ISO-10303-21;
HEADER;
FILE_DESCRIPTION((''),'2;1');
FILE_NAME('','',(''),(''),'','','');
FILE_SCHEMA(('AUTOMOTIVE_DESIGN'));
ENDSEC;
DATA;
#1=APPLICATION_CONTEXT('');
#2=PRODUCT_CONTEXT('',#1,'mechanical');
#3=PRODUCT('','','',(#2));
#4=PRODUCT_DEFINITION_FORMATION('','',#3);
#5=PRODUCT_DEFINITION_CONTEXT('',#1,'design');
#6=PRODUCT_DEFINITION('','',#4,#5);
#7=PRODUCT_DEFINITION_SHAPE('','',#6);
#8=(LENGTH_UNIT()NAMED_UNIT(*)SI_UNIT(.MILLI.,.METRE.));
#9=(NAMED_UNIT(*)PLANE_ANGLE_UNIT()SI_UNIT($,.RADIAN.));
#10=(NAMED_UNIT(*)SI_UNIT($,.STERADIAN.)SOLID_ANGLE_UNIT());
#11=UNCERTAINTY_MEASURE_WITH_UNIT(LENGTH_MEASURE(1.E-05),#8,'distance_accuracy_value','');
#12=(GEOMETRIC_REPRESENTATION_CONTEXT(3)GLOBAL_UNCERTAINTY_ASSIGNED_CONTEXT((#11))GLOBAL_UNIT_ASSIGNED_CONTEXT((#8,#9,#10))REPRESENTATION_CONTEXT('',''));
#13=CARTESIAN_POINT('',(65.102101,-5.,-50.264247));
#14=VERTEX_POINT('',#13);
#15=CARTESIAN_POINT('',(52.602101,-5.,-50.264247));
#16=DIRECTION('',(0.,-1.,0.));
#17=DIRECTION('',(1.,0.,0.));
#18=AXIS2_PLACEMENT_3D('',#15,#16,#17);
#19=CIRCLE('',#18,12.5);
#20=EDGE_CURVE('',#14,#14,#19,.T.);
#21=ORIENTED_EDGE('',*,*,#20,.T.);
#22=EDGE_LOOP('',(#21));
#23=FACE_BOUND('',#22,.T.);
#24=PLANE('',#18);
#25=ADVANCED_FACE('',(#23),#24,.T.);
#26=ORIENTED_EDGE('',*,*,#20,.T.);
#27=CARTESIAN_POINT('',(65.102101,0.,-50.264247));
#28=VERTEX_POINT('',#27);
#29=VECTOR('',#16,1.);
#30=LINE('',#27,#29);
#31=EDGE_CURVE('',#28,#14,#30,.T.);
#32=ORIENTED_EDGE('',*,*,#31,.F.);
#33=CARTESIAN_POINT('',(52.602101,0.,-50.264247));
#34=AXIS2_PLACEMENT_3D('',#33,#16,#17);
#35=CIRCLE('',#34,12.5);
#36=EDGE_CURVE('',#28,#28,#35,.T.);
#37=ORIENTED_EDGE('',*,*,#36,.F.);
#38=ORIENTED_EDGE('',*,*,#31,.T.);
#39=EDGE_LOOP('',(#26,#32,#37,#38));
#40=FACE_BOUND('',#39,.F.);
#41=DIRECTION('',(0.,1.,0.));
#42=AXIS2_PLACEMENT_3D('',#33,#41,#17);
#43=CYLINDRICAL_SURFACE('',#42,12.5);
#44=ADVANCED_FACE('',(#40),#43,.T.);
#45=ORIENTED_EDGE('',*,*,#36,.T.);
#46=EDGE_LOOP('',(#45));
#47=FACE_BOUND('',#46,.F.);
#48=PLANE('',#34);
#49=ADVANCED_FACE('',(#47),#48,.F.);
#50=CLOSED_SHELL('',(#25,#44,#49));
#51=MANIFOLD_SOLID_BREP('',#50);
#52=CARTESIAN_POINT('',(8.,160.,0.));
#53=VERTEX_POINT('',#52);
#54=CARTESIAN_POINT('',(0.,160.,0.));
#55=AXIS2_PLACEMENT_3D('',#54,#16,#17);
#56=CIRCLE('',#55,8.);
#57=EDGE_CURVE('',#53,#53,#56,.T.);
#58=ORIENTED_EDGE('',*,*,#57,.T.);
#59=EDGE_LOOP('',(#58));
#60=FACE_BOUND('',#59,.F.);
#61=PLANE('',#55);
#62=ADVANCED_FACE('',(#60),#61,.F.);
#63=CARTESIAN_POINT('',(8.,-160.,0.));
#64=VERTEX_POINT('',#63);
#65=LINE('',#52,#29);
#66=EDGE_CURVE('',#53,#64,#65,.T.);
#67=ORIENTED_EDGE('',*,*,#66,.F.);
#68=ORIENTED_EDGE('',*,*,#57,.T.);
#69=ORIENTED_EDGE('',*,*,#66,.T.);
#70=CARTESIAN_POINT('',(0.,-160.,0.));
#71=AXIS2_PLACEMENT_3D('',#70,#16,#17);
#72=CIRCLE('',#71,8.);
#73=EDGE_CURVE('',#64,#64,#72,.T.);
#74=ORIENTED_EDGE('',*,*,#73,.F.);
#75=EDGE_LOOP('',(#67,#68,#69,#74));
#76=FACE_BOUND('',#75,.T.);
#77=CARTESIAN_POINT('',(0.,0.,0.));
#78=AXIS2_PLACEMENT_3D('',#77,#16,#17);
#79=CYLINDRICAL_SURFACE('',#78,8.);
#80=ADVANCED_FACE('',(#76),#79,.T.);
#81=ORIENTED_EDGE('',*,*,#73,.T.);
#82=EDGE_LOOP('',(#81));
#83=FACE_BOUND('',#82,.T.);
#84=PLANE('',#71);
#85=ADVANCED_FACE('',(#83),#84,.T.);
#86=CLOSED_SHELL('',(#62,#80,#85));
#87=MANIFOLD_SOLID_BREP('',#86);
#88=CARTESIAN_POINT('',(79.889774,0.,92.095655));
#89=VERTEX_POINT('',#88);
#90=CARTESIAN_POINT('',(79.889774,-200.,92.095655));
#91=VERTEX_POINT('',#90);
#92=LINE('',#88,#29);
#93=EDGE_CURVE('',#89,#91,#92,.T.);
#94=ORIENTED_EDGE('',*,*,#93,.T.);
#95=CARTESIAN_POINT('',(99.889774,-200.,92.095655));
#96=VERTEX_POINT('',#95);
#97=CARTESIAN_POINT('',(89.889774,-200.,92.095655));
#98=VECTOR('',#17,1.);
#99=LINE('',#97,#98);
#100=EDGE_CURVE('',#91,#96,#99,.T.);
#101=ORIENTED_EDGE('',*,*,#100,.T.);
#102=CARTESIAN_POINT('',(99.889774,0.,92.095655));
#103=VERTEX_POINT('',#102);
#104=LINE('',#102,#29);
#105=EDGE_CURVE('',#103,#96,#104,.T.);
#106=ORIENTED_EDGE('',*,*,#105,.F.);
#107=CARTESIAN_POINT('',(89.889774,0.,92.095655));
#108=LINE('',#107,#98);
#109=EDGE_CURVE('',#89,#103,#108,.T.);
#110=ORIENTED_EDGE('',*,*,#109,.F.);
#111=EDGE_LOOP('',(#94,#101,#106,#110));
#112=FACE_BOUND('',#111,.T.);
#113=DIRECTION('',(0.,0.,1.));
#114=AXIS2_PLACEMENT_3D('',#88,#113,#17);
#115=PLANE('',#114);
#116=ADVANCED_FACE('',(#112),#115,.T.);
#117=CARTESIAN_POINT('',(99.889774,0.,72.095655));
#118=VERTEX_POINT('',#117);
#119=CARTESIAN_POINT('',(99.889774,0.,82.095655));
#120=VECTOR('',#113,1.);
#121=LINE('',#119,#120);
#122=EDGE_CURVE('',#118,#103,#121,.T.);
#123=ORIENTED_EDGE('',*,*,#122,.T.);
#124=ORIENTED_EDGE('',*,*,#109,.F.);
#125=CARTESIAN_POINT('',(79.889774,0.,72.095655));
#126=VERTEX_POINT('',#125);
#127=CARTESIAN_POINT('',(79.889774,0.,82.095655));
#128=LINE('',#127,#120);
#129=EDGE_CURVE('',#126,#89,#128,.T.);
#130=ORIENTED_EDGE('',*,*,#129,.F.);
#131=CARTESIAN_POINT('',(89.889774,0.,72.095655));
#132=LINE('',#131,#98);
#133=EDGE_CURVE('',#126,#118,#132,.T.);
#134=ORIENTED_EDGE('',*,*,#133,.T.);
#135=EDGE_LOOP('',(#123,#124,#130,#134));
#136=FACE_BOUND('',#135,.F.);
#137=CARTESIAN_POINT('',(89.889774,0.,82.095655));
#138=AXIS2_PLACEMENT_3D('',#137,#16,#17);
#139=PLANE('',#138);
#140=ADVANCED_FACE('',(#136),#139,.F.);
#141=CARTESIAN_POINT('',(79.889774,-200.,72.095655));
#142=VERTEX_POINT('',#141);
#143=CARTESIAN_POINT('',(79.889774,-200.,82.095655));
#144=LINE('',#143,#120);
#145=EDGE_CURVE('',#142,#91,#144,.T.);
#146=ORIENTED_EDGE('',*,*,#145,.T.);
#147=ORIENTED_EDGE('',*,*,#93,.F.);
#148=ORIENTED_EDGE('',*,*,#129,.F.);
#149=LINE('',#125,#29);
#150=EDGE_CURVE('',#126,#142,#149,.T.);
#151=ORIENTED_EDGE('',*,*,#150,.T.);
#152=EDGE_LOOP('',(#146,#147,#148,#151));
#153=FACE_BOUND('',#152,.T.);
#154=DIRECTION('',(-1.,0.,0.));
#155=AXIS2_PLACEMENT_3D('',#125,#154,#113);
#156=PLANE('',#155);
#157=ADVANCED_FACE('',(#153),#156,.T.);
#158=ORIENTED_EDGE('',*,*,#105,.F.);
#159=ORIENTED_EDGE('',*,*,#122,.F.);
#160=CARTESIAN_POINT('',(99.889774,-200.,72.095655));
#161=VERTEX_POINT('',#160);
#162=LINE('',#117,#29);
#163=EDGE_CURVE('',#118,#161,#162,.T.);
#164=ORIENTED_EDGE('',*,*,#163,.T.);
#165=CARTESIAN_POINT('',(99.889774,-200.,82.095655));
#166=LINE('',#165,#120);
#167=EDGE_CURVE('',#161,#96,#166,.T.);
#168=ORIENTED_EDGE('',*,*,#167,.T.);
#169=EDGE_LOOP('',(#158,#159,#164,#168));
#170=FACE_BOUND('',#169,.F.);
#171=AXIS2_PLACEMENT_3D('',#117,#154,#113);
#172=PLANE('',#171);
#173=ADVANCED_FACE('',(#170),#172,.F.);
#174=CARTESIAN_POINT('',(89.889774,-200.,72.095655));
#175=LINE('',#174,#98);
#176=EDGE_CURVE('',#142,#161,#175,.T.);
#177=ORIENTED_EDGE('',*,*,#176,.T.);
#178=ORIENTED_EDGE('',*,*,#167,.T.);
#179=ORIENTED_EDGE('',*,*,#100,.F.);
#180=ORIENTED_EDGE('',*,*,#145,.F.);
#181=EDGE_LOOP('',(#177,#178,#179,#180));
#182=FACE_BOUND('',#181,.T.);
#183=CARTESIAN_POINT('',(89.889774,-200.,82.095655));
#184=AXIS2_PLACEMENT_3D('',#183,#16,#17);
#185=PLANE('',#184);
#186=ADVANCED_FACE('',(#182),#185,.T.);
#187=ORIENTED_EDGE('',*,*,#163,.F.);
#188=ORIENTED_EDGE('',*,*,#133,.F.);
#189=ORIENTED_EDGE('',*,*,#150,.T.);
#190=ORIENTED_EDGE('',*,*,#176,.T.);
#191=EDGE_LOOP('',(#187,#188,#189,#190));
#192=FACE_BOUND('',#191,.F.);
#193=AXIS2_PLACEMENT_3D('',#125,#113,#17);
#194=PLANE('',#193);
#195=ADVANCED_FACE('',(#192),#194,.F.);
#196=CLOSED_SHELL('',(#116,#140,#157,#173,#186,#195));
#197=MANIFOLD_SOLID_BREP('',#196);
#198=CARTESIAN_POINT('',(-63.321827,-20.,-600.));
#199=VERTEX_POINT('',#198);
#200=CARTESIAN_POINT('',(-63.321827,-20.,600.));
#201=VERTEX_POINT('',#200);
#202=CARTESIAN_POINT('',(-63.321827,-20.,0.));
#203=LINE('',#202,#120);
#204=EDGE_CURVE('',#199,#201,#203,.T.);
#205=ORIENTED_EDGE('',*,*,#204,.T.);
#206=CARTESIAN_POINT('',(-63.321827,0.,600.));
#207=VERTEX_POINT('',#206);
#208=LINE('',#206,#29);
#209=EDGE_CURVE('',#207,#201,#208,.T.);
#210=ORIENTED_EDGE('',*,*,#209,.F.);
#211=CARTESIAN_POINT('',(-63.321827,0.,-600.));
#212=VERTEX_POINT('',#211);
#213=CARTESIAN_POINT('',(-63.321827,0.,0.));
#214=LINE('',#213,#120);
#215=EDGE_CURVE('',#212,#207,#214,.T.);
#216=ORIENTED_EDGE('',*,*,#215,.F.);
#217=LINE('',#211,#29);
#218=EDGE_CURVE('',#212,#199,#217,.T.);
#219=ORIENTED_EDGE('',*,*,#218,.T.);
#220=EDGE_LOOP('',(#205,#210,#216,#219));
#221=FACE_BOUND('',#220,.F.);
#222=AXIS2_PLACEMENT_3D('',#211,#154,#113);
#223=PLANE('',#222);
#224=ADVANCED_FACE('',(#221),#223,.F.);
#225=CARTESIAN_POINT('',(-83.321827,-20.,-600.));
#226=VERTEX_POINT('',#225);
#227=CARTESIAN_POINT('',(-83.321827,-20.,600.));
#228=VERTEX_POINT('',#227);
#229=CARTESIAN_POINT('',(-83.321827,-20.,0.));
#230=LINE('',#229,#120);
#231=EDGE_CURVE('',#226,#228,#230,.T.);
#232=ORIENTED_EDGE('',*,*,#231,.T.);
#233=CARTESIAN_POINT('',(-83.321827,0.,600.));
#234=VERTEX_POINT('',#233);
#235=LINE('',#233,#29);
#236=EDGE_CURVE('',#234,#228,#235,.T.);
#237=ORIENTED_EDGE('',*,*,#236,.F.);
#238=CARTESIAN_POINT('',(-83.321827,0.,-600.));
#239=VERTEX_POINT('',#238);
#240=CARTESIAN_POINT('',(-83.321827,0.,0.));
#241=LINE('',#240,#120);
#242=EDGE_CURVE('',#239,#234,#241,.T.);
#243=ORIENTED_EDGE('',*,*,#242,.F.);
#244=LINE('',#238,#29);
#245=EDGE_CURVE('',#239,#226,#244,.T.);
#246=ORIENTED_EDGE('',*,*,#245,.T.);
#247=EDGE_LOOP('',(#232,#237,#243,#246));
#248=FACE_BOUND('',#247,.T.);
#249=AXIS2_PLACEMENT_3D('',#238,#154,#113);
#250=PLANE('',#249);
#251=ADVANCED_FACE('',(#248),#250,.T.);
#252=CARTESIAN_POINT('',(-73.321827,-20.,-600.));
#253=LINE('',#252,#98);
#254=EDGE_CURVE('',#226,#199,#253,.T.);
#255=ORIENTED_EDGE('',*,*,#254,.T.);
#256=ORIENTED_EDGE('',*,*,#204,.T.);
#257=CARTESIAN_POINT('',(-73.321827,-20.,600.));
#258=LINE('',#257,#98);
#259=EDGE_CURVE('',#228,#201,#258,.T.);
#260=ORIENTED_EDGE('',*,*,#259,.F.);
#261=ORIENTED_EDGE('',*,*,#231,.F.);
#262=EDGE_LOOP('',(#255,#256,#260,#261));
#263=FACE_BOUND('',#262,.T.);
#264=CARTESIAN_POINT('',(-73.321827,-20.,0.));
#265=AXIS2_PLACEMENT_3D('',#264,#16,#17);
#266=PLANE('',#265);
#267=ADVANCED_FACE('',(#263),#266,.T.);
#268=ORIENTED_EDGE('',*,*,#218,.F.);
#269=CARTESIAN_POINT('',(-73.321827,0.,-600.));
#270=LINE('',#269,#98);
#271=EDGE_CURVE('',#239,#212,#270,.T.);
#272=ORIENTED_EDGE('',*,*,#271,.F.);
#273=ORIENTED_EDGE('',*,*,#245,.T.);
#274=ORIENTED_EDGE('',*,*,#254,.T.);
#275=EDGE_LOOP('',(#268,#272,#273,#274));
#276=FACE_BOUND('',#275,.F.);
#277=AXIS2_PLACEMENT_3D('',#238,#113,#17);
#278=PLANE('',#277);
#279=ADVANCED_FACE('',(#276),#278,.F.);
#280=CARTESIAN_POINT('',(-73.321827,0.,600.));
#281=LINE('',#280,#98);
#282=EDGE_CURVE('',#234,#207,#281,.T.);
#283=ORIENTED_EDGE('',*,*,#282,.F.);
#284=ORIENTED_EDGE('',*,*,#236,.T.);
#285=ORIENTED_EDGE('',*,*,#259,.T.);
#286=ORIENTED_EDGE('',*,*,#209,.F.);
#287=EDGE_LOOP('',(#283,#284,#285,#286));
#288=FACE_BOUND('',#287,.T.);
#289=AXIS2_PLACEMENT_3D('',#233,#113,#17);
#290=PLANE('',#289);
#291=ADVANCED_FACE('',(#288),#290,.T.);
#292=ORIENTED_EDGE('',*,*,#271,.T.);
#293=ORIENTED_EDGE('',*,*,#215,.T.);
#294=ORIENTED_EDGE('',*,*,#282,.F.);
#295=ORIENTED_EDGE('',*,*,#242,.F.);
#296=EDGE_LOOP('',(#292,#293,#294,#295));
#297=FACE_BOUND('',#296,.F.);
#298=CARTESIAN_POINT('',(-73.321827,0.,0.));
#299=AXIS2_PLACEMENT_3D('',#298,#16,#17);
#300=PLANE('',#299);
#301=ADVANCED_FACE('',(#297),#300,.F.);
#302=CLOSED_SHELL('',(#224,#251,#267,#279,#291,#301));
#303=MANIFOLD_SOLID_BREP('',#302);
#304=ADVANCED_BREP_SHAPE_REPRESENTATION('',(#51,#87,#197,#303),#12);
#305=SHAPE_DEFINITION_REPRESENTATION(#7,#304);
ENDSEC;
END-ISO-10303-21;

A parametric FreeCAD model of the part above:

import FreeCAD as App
import Part
import Sketcher
Q = App.Units.Quantity


def add_polygon(sketch, points):
    """Adds a closed chain of lines whose ends are joined by coincident constraints."""
    first, n = sketch.GeometryCount, len(points)
    for a, b in zip(points, points[1:] + points[:1]):
        sketch.addGeometry(Part.LineSegment(App.Vector(*a, 0), App.Vector(*b, 0)), False)
    for i in range(n):
        sketch.addConstraint(Sketcher.Constraint("Coincident", first + i, 2, first + (i + 1) % n, 1))

doc = App.newDocument("Part")
params = doc.addObject("Spreadsheet::Sheet", "Params")
for row, (alias, value) in enumerate([
    ("sketch1_diameter", "16 mm"),
    ("pad1_length", "320 mm"),
    ("sketch2_width", "20 mm"),
    ("sketch2_height", "1200 mm"),
    ("pad2_length", "20 mm"),
    ("sketch3_width", "20 mm"),
    ("pad3_length", "200 mm"),
    ("sketch4_diameter", "25 mm"),
    ("pad4_length", "5 mm"),
], start=1):
    params.set(f"A{row}", alias)
    params.set(f"B{row}", "=" + value)
    params.setAlias(f"B{row}", alias)

body = doc.addObject("PartDesign::Body", "Body")

sketch1 = doc.addObject("Sketcher::SketchObject", "Sketch")
body.addObject(sketch1)
sketch1.AttachmentSupport = (doc.XZ_Plane, [""])
sketch1.MapMode = "FlatFace"
sketch1.addGeometry(Part.Circle(App.Vector(0, 0, 0), App.Vector(0, 0, 1), 8), False)
sketch1.addConstraint([
    Sketcher.Constraint("Coincident", 0, 3, -1, 1),
    Sketcher.Constraint("Diameter", 0, Q("16 mm")),
])
sketch1.setExpression("Constraints[1]", "Params.sketch1_diameter")
pad1 = doc.addObject("PartDesign::Pad", "Pad")
body.addObject(pad1)
pad1.Profile = sketch1
pad1.setExpression("Length", "Params.pad1_length")
pad1.Midplane = True
body2 = doc.addObject("PartDesign::Body", "Body001")

sketch2 = doc.addObject("Sketcher::SketchObject", "Sketch001")
body2.addObject(sketch2)
sketch2.AttachmentSupport = (doc.getObject("XZ_Plane001"), [""])
sketch2.MapMode = "FlatFace"
add_polygon(sketch2, [(-83.321827, 600), (-83.321827, -600), (-63.321827, -600), (-63.321827, 600)])
sketch2.addConstraint([
    Sketcher.Constraint("Vertical", 0),
    Sketcher.Constraint("Horizontal", 1),
    Sketcher.Constraint("Vertical", 2),
    Sketcher.Constraint("Horizontal", 3),
    Sketcher.Constraint("DistanceX", 1, 1, 1, 2, Q("20 mm")),
    Sketcher.Constraint("DistanceY", 0, 2, 0, 1, Q("1200 mm")),
    Sketcher.Constraint("DistanceY", 0, 2, -1, 1, Q("600 mm")),
    Sketcher.Constraint("DistanceX", 0, 2, -1, 1, Q("83.321827 mm")),
])
sketch2.setExpression("Constraints[8]", "Params.sketch2_width")
sketch2.setExpression("Constraints[9]", "Params.sketch2_height")
pad2 = doc.addObject("PartDesign::Pad", "Pad001")
body2.addObject(pad2)
pad2.Profile = sketch2
pad2.setExpression("Length", "Params.pad2_length")
body3 = doc.addObject("PartDesign::Body", "Body002")

sketch3 = doc.addObject("Sketcher::SketchObject", "Sketch002")
body3.addObject(sketch3)
sketch3.AttachmentSupport = (doc.getObject("XZ_Plane002"), [""])
sketch3.MapMode = "FlatFace"
add_polygon(sketch3, [(79.889774, 92.095655), (79.889774, 72.095655), (99.889774, 72.095655), (99.889774, 92.095655)])
sketch3.addConstraint([
    Sketcher.Constraint("Vertical", 0),
    Sketcher.Constraint("Horizontal", 1),
    Sketcher.Constraint("Vertical", 2),
    Sketcher.Constraint("Horizontal", 3),
    Sketcher.Constraint("Equal", 3, 0),
    Sketcher.Constraint("DistanceX", 1, 1, 1, 2, Q("20 mm")),
    Sketcher.Constraint("DistanceX", -1, 1, 0, 2, Q("79.889774 mm")),
    Sketcher.Constraint("DistanceY", -1, 1, 0, 2, Q("72.095655 mm")),
])
sketch3.setExpression("Constraints[9]", "Params.sketch3_width")
pad3 = doc.addObject("PartDesign::Pad", "Pad002")
body3.addObject(pad3)
pad3.Profile = sketch3
pad3.setExpression("Length", "Params.pad3_length")
body4 = doc.addObject("PartDesign::Body", "Body003")

sketch4 = doc.addObject("Sketcher::SketchObject", "Sketch003")
body4.addObject(sketch4)
sketch4.AttachmentSupport = (doc.getObject("XZ_Plane003"), [""])
sketch4.MapMode = "FlatFace"
sketch4.addGeometry(Part.Circle(App.Vector(52.602101, -50.264247, 0), App.Vector(0, 0, 1), 12.5), False)
sketch4.addConstraint([
    Sketcher.Constraint("Diameter", 0, Q("25 mm")),
    Sketcher.Constraint("DistanceX", -1, 1, 0, 3, Q("52.602101 mm")),
    Sketcher.Constraint("DistanceY", 0, 3, -1, 1, Q("50.264247 mm")),
])
sketch4.setExpression("Constraints[0]", "Params.sketch4_diameter")
pad4 = doc.addObject("PartDesign::Pad", "Pad003")
body4.addObject(pad4)
pad4.Profile = sketch4
pad4.setExpression("Length", "Params.pad4_length")

doc.recompute()
